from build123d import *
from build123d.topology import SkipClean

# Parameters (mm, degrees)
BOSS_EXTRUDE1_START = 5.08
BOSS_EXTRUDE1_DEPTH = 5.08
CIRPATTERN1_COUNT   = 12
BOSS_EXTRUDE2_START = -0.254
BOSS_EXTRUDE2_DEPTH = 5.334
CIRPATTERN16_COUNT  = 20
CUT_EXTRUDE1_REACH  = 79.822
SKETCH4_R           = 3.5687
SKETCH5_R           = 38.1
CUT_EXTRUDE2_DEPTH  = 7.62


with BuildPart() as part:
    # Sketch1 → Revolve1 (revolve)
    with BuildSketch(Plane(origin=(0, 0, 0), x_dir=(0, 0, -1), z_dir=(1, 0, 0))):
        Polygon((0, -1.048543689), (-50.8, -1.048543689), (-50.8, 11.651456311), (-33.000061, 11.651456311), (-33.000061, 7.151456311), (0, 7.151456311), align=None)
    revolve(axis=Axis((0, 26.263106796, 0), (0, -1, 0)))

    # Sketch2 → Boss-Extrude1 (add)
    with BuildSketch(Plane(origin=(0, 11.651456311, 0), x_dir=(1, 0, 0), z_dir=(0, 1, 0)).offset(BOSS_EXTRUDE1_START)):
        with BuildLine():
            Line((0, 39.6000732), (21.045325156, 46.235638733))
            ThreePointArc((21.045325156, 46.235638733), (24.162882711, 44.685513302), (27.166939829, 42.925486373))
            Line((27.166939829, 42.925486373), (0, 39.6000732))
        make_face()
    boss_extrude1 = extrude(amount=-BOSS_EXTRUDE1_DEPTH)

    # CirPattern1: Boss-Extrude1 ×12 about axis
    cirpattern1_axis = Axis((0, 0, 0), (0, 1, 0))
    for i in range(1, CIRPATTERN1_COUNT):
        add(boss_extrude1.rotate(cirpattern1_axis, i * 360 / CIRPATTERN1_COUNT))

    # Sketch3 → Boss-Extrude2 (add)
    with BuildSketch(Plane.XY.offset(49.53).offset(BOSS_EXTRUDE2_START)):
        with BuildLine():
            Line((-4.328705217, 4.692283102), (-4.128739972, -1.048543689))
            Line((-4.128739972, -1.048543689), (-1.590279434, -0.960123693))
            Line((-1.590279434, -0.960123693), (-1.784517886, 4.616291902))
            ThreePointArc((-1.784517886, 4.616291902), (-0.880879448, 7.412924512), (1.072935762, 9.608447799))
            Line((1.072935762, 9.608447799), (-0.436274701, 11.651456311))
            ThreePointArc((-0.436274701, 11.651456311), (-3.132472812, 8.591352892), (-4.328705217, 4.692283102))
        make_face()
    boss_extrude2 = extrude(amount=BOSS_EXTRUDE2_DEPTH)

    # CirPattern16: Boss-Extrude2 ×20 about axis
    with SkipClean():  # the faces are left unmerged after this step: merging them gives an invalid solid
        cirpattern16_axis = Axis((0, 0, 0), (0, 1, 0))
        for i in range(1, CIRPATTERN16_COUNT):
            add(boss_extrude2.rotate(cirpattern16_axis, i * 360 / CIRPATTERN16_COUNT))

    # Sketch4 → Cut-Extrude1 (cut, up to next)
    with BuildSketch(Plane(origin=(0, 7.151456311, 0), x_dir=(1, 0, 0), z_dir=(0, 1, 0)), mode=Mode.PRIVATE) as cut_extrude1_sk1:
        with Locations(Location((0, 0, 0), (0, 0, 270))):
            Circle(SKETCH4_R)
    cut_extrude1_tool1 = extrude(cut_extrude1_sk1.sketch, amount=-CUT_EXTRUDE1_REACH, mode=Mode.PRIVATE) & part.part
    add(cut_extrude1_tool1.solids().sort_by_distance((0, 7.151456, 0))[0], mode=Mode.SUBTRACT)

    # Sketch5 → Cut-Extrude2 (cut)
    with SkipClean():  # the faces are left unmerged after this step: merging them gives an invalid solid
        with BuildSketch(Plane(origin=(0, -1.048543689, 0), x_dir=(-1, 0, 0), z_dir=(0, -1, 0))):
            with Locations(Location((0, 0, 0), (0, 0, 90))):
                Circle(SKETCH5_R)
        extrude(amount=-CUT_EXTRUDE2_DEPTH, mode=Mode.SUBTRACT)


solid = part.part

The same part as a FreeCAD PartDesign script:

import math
import FreeCAD as App
import Part
import Sketcher

V = App.Vector
Q = App.Units.Quantity

doc = App.newDocument("Part")
body = doc.addObject("PartDesign::Body", "Body")

# Sketch on YZ plane
sketch1 = body.newObject("Sketcher::SketchObject", "Sketch")
sketch1.AttachmentSupport = (doc.getObject("YZ_Plane"), [""])
sketch1.MapMode = "FlatFace"
sketch1.addGeometry(Part.LineSegment(V(-1, 50.8, 0), V(-1, 0, 0)), False)
sketch1.addGeometry(Part.LineSegment(V(-1, 0, 0), V(7.2, 0, 0)), False)
sketch1.addGeometry(Part.LineSegment(V(7.2, 0, 0), V(7.2, 33, 0)), False)
sketch1.addGeometry(Part.LineSegment(V(7.2, 33, 0), V(11.7, 33, 0)), False)
sketch1.addGeometry(Part.LineSegment(V(11.7, 33, 0), V(11.7, 50.8, 0)), False)
sketch1.addGeometry(Part.LineSegment(V(11.7, 50.8, 0), V(-1, 50.8, 0)), False)
sketch1.addConstraint(Sketcher.Constraint("Coincident", 0, 2, 1, 1))
sketch1.addConstraint(Sketcher.Constraint("Coincident", 1, 2, 2, 1))
sketch1.addConstraint(Sketcher.Constraint("Coincident", 2, 2, 3, 1))
sketch1.addConstraint(Sketcher.Constraint("Coincident", 3, 2, 4, 1))
sketch1.addConstraint(Sketcher.Constraint("Coincident", 4, 2, 5, 1))
sketch1.addConstraint(Sketcher.Constraint("Coincident", 5, 2, 0, 1))
sketch1.addConstraint(Sketcher.Constraint("Vertical", 0))
sketch1.addConstraint(Sketcher.Constraint("Horizontal", 1))
sketch1.addConstraint(Sketcher.Constraint("Vertical", 2))
sketch1.addConstraint(Sketcher.Constraint("Horizontal", 3))
sketch1.addConstraint(Sketcher.Constraint("Vertical", 4))
sketch1.addConstraint(Sketcher.Constraint("Horizontal", 5))
sketch1.addConstraint(Sketcher.Constraint("PointOnObject", 0, 2, -1))
sketch1.addConstraint(Sketcher.Constraint("DistanceY", 0, 2, 0, 1, Q("2 in")))
sketch1.addConstraint(Sketcher.Constraint("DistanceX", 5, 2, 5, 1, Q("0.5 in")))
sketch1.addConstraint(Sketcher.Constraint("DistanceX", 1, 1, 1, 2, 8.2))
sketch1.addConstraint(Sketcher.Constraint("DistanceY", 2, 1, 2, 2, 33.000061))
sketch1.addConstraint(Sketcher.Constraint("DistanceX", 0, 2, -1, 1, 1.048544))
revolution = body.newObject("PartDesign::Revolution", "Revolution")
revolution.Profile = sketch1
revolution.ReferenceAxis = (sketch1, ["H_Axis"])
revolution.Angle = 360

# Sketch on XZ plane
sketch2 = body.newObject("Sketcher::SketchObject", "Sketch001")
sketch2.AttachmentSupport = (doc.getObject("XZ_Plane"), [""])
sketch2.MapMode = "FlatFace"
sketch2.AttachmentOffset = App.Placement(V(0, 0, -16.731456), App.Rotation())
sketch2.addGeometry(Part.LineSegment(V(21, -46, 0), V(0, -40, 0)), False)
sketch2.addGeometry(Part.LineSegment(V(0, -40, 0), V(27, -43, 0)), False)
sketch2.addGeometry(Part.ArcOfCircle(Part.Circle(V(0, 0, 0), V(0, 0, 1), 51), math.radians(-65.53), math.radians(-57.67)), False)
sketch2.addConstraint(Sketcher.Constraint("Coincident", 0, 2, 1, 1))
sketch2.addConstraint(Sketcher.Constraint("Coincident", 1, 2, 2, 2))
sketch2.addConstraint(Sketcher.Constraint("Coincident", 2, 1, 0, 1))
sketch2.addConstraint(Sketcher.Constraint("Coincident", 2, 3, -1, 1))
sketch2.addConstraint(Sketcher.Constraint("PointOnObject", 0, 2, -2))
sketch2.addConstraint(Sketcher.Constraint("Radius", 2, Q("2 in")))
sketch2.addConstraint(Sketcher.Constraint("Angle", 0, Q("162.5 deg")))
sketch2.addConstraint(Sketcher.Constraint("Distance", 1, 27.369709))
sketch2.addConstraint(Sketcher.Constraint("DistanceX", -1, 1, 1, 2, 27.16694))
pad1 = body.newObject("PartDesign::Pad", "Pad")
pad1.Profile = sketch2
pad1.Length = Q("0.2 in")
doc.recompute()

polarpattern = body.newObject("PartDesign::PolarPattern", "PolarPattern")
polarpattern.Originals = [pad1]
polarpattern.Axis = (doc.getObject("Y_Axis"), [""])
polarpattern.Angle = 360
polarpattern.Occurrences = 12
body.Tip = polarpattern

# Sketch on XY plane
sketch3 = body.newObject("Sketcher::SketchObject", "Sketch002")
sketch3.AttachmentSupport = (doc.getObject("XY_Plane"), [""])
sketch3.MapMode = "FlatFace"
sketch3.AttachmentOffset = App.Placement(V(0, 0, 1.94 * 25.4), App.Rotation())
sketch3.addGeometry(Part.LineSegment(V(-4.328705, 4.692283, 0), V(-4.12874, -1.048544, 0)), False)
sketch3.addGeometry(Part.LineSegment(V(-4.12874, -1.048544, 0), V(-1.590279, -0.960124, 0)), False)
sketch3.addGeometry(Part.LineSegment(V(-1.590279, -0.960124, 0), V(-1.784518, 4.616292, 0)), False)
sketch3.addGeometry(Part.ArcOfCircle(Part.Circle(V(5.314385, 3.866825, 0), V(0, 0, 1), 7.138356), math.radians(126.454009), math.radians(173.973322)), False)
sketch3.addGeometry(Part.LineSegment(V(1.072936, 9.608448, 0), V(-0.436275, 11.651456, 0)), False)
sketch3.addGeometry(Part.ArcOfCircle(Part.Circle(V(5.314385, 3.866825, 0), V(0, 0, 1), 9.678356), math.radians(126.454009), math.radians(175.107352)), False)
sketch3.addConstraint(Sketcher.Constraint("Coincident", 0, 2, 1, 1))
sketch3.addConstraint(Sketcher.Constraint("Coincident", 1, 2, 2, 1))
sketch3.addConstraint(Sketcher.Constraint("Coincident", 2, 2, 3, 2))
sketch3.addConstraint(Sketcher.Constraint("Coincident", 3, 1, 4, 1))
sketch3.addConstraint(Sketcher.Constraint("Coincident", 4, 2, 5, 1))
sketch3.addConstraint(Sketcher.Constraint("Coincident", 5, 2, 0, 1))
sketch3.addConstraint(Sketcher.Constraint("Coincident", 5, 3, 3, 3))
sketch3.addConstraint(Sketcher.Constraint("Distance", 1, Q("0.1 in")))
sketch3.addConstraint(Sketcher.Constraint("Distance", 4, Q("0.1 in")))
sketch3.addConstraint(Sketcher.Constraint("DistanceY", 1, 2, -1, 1, Q("0.0378001 in")))
sketch3.addConstraint(Sketcher.Constraint("Radius", 3, 7.138356))
sketch3.addConstraint(Sketcher.Constraint("Distance", 0, 5.744308))
sketch3.addConstraint(Sketcher.Constraint("DistanceX", 0, 2, -1, 1, 4.12874))
sketch3.addConstraint(Sketcher.Constraint("DistanceX", 1, 2, -1, 1, 1.590279))
sketch3.addConstraint(Sketcher.Constraint("DistanceY", -1, 1, 2, 2, 4.616292))
sketch3.addConstraint(Sketcher.Constraint("DistanceY", 0, 2, 3, 3, 4.915369))
sketch3.addConstraint(Sketcher.Constraint("DistanceX", 2, 2, 1, 2, 0.194238))
sketch3.addConstraint(Sketcher.Constraint("DistanceX", 3, 1, 3, 3, 4.241449))
sketch3.addConstraint(Sketcher.Constraint("DistanceX", 4, 2, 3, 1, 1.50921))
pad2 = body.newObject("PartDesign::Pad", "Pad001")
pad2.Profile = sketch3
pad2.Length = Q("0.21 in")
doc.recompute()

polarpattern2 = body.newObject("PartDesign::PolarPattern", "PolarPattern001")
polarpattern2.Originals = [pad2]
polarpattern2.Axis = (doc.getObject("Y_Axis"), [""])
polarpattern2.Angle = 360
polarpattern2.Occurrences = 20
body.Tip = polarpattern2

# Sketch on XZ plane
sketch4 = body.newObject("Sketcher::SketchObject", "Sketch003")
sketch4.AttachmentSupport = (doc.getObject("XZ_Plane"), [""])
sketch4.MapMode = "FlatFace"
sketch4.AttachmentOffset = App.Placement(V(0, 0, -7.151456), App.Rotation())
sketch4.addGeometry(Part.Circle(V(0, 0, 0), V(0, 0, 1), 3.6), False)
sketch4.addConstraint(Sketcher.Constraint("Coincident", 0, 3, -1, 1))
sketch4.addConstraint(Sketcher.Constraint("Diameter", 0, Q("0.281 in")))
pocket1 = body.newObject("PartDesign::Pocket", "Pocket")
pocket1.Profile = sketch4
pocket1.Type = "UpToFirst"
pocket1.Reversed = True

# Sketch on XZ plane
sketch5 = body.newObject("Sketcher::SketchObject", "Sketch004")
sketch5.AttachmentSupport = (doc.getObject("XZ_Plane"), [""])
sketch5.MapMode = "FlatFace"
sketch5.AttachmentOffset = App.Placement(V(0, 0, 1.048544), App.Rotation())
sketch5.addGeometry(Part.Circle(V(0, 0, 0), V(0, 0, 1), 38), False)
sketch5.addConstraint(Sketcher.Constraint("Coincident", 0, 3, -1, 1))
sketch5.addConstraint(Sketcher.Constraint("Diameter", 0, Q("3 in")))
pocket2 = body.newObject("PartDesign::Pocket", "Pocket001")
pocket2.Profile = sketch5
pocket2.Length = Q("0.3 in")

doc.recompute()
